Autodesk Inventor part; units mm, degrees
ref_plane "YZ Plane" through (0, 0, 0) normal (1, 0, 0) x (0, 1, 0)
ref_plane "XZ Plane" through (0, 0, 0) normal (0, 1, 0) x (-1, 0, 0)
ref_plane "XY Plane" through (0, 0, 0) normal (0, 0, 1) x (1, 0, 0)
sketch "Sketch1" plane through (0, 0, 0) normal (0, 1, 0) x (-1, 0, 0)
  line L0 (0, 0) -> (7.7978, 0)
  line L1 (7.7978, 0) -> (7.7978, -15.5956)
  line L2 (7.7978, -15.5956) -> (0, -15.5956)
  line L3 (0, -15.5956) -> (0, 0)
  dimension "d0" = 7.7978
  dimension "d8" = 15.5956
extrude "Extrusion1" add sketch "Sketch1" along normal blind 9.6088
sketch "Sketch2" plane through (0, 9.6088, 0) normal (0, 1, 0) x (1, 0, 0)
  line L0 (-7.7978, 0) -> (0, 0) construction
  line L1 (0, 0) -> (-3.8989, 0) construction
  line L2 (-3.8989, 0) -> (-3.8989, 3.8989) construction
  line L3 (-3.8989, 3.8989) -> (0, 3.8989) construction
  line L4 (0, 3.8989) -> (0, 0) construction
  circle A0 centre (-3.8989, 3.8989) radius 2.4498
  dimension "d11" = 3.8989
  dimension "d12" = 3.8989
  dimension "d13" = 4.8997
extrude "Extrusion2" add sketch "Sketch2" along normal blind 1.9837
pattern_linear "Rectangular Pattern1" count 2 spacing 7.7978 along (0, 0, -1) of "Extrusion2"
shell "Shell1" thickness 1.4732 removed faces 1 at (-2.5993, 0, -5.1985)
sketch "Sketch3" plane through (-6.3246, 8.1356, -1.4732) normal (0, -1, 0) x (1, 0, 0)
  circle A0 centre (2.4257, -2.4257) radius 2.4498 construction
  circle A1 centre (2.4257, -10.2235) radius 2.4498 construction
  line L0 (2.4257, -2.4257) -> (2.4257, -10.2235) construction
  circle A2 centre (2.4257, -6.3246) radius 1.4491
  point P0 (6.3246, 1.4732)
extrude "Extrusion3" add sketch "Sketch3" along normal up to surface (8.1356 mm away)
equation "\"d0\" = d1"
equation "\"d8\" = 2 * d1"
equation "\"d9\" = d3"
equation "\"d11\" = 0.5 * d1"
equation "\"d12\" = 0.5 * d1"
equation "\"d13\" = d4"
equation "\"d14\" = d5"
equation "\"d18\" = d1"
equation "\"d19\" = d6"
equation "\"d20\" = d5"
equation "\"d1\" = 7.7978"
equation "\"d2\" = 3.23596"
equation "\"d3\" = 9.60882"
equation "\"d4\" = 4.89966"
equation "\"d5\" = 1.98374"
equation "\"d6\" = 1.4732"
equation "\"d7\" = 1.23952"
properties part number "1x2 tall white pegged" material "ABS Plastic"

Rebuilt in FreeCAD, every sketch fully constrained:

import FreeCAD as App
import Part
import Sketcher
Q = App.Units.Quantity


def faces_at(feature, points):
    """Names of the faces that lie closest to the given points."""
    faces = feature.Shape.Faces
    near = lambda p: min(range(len(faces)), key=lambda i: faces[i].distToShape(Part.Vertex(*p))[0])
    return sorted({f"Face{near(p) + 1}" for p in points})


def add_polygon(sketch, points):
    """Adds a closed chain of lines whose ends are joined by coincident constraints."""
    first, n = sketch.GeometryCount, len(points)
    for a, b in zip(points, points[1:] + points[:1]):
        sketch.addGeometry(Part.LineSegment(App.Vector(*a, 0), App.Vector(*b, 0)), False)
    for i in range(n):
        sketch.addConstraint(Sketcher.Constraint("Coincident", first + i, 2, first + (i + 1) % n, 1))

doc = App.newDocument("Part")
body = doc.addObject("PartDesign::Body", "Body")

sketch1 = body.newObject("Sketcher::SketchObject", "Sketch")
sketch1.AttachmentSupport = (doc.getObject("XZ_Plane"), [""])
sketch1.MapMode = "FlatFace"
add_polygon(sketch1, [(-8, 0), (0, 0), (0, -16), (-8, -16)])
sketch1.addConstraint([
    Sketcher.Constraint("Horizontal", 0),
    Sketcher.Constraint("Vertical", 1),
    Sketcher.Constraint("Horizontal", 2),
    Sketcher.Constraint("Vertical", 3),
    Sketcher.Constraint("Coincident", 0, 2, -1, 1),
    Sketcher.Constraint("DistanceX", 0, 1, 0, 2, Q("0.307 in")),
    Sketcher.Constraint("DistanceY", 1, 2, 1, 1, Q("0.614 in")),
])
pad1 = body.newObject("PartDesign::Pad", "Pad")
pad1.Profile = sketch1
pad1.Length = Q("0.3782992 in")
pad1.Reversed = True

sketch2 = body.newObject("Sketcher::SketchObject", "Sketch001")
sketch2.AttachmentSupport = (doc.getObject("XZ_Plane"), [""])
sketch2.MapMode = "FlatFace"
sketch2.AttachmentOffset = App.Placement(App.Vector(0, 0, -0.3782992 * 25.4), App.Rotation())
sketch2.addGeometry(Part.Circle(App.Vector(-3.9, -3.9, 0), App.Vector(0, 0, 1), 2.4), False)
sketch2.addConstraint([
    Sketcher.Constraint("Diameter", 0, Q("0.1929 in")),
    Sketcher.Constraint("DistanceX", 0, 3, -1, 1, Q("0.1535 in")),
    Sketcher.Constraint("DistanceY", 0, 3, -1, 1, Q("0.1535 in")),
])
pad2 = body.newObject("PartDesign::Pad", "Pad001")
pad2.Profile = sketch2
pad2.Length = Q("0.0780984 in")
pad2.Reversed = True
doc.recompute()

linearpattern = body.newObject("PartDesign::LinearPattern", "LinearPattern")
linearpattern.Originals = [pad2]
linearpattern.Direction = (doc.getObject("Z_Axis"), [""])
linearpattern.Mode = "offset"
linearpattern.Offset = Q("0.307 in")
linearpattern.Occurrences = 2
linearpattern.Reversed = True
body.Tip = linearpattern
doc.recompute()

thickness = body.newObject("PartDesign::Thickness", "Thickness")
thickness.Base = (linearpattern, faces_at(linearpattern, [(-2.599, 0, -5.199)]))
thickness.Value = Q("0.058 in")
thickness.Reversed = True
thickness.Join = "Intersection"

sketch3 = body.newObject("Sketcher::SketchObject", "Sketch002")
sketch3.AttachmentSupport = (doc.getObject("XZ_Plane"), [""])
sketch3.MapMode = "FlatFace"
sketch3.AttachmentOffset = App.Placement(App.Vector(0, 0, -0.3202992 * 25.4), App.Rotation())
sketch3.addGeometry(Part.Circle(App.Vector(-3.9, -7.8, 0), App.Vector(0, 0, 1), 1.4), False)
sketch3.addConstraint([
    Sketcher.Constraint("Diameter", 0, Q("0.1141 in")),
    Sketcher.Constraint("DistanceY", 0, 3, -1, 1, Q("0.307 in")),
    Sketcher.Constraint("DistanceX", 0, 3, -1, 1, Q("0.1535 in")),
])
pad3 = body.newObject("PartDesign::Pad", "Pad002")
pad3.Profile = sketch3
pad3.Length = Q("0.3202992 in")

doc.recompute()
